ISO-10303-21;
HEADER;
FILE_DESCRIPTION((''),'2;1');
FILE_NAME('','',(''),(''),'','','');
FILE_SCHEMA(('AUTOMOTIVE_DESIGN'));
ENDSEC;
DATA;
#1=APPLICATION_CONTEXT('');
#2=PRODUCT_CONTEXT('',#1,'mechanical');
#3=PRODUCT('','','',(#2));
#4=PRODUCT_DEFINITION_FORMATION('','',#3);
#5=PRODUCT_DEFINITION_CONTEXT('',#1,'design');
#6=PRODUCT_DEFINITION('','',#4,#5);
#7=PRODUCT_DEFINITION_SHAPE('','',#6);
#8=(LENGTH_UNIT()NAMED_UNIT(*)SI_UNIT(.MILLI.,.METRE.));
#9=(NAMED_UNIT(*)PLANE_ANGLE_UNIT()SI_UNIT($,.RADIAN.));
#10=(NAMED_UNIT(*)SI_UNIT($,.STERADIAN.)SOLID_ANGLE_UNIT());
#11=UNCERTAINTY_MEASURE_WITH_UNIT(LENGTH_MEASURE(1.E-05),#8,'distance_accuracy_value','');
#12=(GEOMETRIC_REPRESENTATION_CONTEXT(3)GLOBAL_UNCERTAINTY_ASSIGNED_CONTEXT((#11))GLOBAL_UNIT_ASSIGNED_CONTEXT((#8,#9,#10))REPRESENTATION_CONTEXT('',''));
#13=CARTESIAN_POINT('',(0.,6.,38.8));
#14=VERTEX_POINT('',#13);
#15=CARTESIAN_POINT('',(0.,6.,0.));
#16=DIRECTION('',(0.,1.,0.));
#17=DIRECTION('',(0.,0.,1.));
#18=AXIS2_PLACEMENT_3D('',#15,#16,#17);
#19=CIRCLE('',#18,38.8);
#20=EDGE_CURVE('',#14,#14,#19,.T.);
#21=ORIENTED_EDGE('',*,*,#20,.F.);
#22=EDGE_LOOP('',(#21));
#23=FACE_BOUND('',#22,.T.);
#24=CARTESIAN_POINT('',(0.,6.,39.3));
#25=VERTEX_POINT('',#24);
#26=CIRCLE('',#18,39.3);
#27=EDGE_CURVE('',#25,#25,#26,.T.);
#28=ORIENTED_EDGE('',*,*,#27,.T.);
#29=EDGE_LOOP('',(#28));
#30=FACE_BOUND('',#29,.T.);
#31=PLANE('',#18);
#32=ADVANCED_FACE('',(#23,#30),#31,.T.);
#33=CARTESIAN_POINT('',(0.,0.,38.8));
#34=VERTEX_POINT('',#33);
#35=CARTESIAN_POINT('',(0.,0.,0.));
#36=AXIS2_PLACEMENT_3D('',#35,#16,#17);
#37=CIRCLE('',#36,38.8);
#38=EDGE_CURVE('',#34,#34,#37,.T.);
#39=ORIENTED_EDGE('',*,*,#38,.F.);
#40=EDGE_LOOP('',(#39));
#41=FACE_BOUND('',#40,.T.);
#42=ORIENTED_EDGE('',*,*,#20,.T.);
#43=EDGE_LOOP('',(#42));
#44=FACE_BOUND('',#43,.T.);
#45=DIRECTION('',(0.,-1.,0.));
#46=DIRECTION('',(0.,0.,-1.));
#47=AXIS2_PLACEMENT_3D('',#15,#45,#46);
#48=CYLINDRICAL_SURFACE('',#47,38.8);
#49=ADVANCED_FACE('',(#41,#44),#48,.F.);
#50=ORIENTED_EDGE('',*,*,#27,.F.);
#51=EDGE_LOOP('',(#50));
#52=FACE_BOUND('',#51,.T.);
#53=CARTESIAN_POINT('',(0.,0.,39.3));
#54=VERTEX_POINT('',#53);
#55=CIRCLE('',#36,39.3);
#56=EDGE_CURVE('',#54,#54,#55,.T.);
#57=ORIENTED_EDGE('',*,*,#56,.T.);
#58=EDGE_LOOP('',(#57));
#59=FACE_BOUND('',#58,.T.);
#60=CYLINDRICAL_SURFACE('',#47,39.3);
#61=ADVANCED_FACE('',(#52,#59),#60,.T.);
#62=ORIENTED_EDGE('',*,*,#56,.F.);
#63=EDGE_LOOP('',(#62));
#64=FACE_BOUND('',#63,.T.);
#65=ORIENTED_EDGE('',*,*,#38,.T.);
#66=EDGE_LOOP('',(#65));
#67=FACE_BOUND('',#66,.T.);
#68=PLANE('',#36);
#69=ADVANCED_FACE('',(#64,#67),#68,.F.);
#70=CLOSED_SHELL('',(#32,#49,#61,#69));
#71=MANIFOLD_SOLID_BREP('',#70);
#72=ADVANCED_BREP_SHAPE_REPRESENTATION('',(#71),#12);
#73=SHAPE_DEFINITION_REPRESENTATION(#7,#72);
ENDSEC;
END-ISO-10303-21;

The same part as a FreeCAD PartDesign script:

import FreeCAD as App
import Part
import Sketcher

doc = App.newDocument("Part")
params = doc.addObject("Spreadsheet::Sheet", "Params")
for row, (alias, value) in enumerate([
    ("sketch1_diameter", "78.6 mm"),
    ("sketch1_diameter2", "77.6 mm"),
    ("pad1_length", "6 mm"),
], start=1):
    params.set(f"A{row}", alias)
    params.set(f"B{row}", "=" + value)
    params.setAlias(f"B{row}", alias)

body = doc.addObject("PartDesign::Body", "Body")

# Sketch on XZ plane
sketch1 = body.newObject("Sketcher::SketchObject", "Sketch")
sketch1.AttachmentSupport = (doc.getObject("XZ_Plane"), [""])
sketch1.MapMode = "FlatFace"
sketch1.addGeometry([
    Part.Circle(App.Vector(0, 0, 0), App.Vector(0, 0, 1), 39),
    Part.Circle(App.Vector(0, 0, 0), App.Vector(0, 0, 1), 39),
], False)
sketch1.addConstraint([
    Sketcher.Constraint("Coincident", 0, 3, -1, 1),
    Sketcher.Constraint("Coincident", 1, 3, -1, 1),
    Sketcher.Constraint("Diameter", 0, 78.6),
    Sketcher.Constraint("Diameter", 1, 77.6),
])
sketch1.setExpression("Constraints[2]", "Params.sketch1_diameter")
sketch1.setExpression("Constraints[3]", "Params.sketch1_diameter2")
pad1 = body.newObject("PartDesign::Pad", "Pad")
pad1.Profile = sketch1
pad1.setExpression("Length", "Params.pad1_length")
pad1.Reversed = True

doc.recompute()
